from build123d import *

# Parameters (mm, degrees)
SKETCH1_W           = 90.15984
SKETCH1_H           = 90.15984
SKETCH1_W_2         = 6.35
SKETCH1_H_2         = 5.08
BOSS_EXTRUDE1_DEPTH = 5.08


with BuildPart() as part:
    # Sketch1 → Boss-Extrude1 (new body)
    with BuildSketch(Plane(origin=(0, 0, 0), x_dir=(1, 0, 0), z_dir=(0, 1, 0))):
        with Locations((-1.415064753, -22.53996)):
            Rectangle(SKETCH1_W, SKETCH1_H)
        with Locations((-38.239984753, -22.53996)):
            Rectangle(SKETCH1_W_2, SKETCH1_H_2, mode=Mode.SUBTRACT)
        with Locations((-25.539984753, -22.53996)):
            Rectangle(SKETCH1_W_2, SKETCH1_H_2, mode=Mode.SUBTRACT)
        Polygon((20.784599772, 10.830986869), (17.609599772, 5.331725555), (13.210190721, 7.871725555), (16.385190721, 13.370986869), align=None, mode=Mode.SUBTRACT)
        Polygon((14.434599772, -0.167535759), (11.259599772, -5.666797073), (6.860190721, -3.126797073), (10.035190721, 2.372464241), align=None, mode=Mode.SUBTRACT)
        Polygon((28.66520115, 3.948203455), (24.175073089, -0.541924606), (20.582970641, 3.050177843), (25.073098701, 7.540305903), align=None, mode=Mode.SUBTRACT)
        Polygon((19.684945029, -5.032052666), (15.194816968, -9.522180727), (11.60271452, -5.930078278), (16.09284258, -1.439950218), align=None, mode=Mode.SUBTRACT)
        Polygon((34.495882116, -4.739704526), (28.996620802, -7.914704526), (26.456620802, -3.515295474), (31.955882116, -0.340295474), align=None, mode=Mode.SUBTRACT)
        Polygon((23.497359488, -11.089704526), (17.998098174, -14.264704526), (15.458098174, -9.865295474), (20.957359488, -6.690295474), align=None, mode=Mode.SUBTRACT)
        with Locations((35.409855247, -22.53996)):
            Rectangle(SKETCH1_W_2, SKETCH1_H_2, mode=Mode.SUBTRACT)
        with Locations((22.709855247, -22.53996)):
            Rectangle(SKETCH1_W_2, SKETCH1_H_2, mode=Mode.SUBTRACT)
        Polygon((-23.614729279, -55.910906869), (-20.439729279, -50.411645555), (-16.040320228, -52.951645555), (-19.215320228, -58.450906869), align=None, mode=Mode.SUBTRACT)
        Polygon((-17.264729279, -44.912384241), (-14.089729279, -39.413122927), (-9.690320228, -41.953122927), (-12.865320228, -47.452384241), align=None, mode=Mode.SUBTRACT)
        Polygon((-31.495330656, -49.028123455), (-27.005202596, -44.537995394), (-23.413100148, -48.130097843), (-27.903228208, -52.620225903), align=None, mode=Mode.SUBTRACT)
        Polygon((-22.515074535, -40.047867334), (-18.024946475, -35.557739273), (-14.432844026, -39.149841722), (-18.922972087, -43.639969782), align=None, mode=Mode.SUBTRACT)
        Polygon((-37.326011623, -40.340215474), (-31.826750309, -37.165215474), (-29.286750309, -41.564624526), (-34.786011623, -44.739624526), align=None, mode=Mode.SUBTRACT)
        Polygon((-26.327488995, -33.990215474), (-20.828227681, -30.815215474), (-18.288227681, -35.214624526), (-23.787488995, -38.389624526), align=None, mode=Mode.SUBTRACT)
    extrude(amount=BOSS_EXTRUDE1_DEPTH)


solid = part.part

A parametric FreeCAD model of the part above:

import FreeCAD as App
import Part
import Sketcher

V = App.Vector
Q = App.Units.Quantity


def add_polygon(sketch, points):
    """Adds a closed chain of lines whose ends are joined by coincident constraints."""
    first, n = sketch.GeometryCount, len(points)
    for a, b in zip(points, points[1:] + points[:1]):
        sketch.addGeometry(Part.LineSegment(App.Vector(*a, 0), App.Vector(*b, 0)), False)
    for i in range(n):
        sketch.addConstraint(Sketcher.Constraint("Coincident", first + i, 2, first + (i + 1) % n, 1))

doc = App.newDocument("Part")
body = doc.addObject("PartDesign::Body", "Body")

sketch1 = doc.addObject("Sketcher::SketchObject", "Sketch")
body.addObject(sketch1)
sketch1.AttachmentSupport = (doc.XZ_Plane, [""])
sketch1.MapMode = "FlatFace"
add_polygon(sketch1, [(-46.494985, -22.53996), (-46.494985, 67.61988), (43.664855, 67.61988), (43.664855, -22.53996)])
add_polygon(sketch1, [(-34.786012, 44.739625), (-37.326012, 40.340215), (-31.82675, 37.165215), (-29.28675, 41.564625)])
add_polygon(sketch1, [(-27.903228, 52.620226), (-31.495331, 49.028123), (-27.005203, 44.537995), (-23.4131, 48.130098)])
add_polygon(sketch1, [(-19.21532, 58.450907), (-23.614729, 55.910907), (-20.439729, 50.411646), (-16.04032, 52.951646)])
add_polygon(sketch1, [(-12.86532, 47.452384), (-17.264729, 44.912384), (-14.089729, 39.413123), (-9.69032, 41.953123)])
add_polygon(sketch1, [(-23.787489, 38.389625), (-26.327489, 33.990215), (-20.828228, 30.815215), (-18.288228, 35.214625)])
add_polygon(sketch1, [(-18.922972, 43.63997), (-22.515075, 40.047867), (-18.024946, 35.557739), (-14.432844, 39.149842)])
add_polygon(sketch1, [(-35.064985, 25.07996), (-41.414985, 25.07996), (-41.414985, 19.99996), (-35.064985, 19.99996)])
add_polygon(sketch1, [(-22.364985, 25.07996), (-28.714985, 25.07996), (-28.714985, 19.99996), (-22.364985, 19.99996)])
add_polygon(sketch1, [(16.092843, 1.43995), (19.684945, 5.032053), (15.194817, 9.522181), (11.602715, 5.930078)])
add_polygon(sketch1, [(25.884855, 25.07996), (19.534855, 25.07996), (19.534855, 19.99996), (25.884855, 19.99996)])
add_polygon(sketch1, [(38.584855, 25.07996), (32.234855, 25.07996), (32.234855, 19.99996), (38.584855, 19.99996)])
add_polygon(sketch1, [(20.957359, 6.690295), (23.497359, 11.089705), (17.998098, 14.264705), (15.458098, 9.865295)])
add_polygon(sketch1, [(10.035191, -2.372464), (14.4346, 0.167536), (11.2596, 5.666797), (6.860191, 3.126797)])
add_polygon(sketch1, [(16.385191, -13.370987), (20.7846, -10.830987), (17.6096, -5.331726), (13.210191, -7.871726)])
add_polygon(sketch1, [(25.073099, -7.540306), (28.665201, -3.948203), (24.175073, 0.541925), (20.582971, -3.050178)])
add_polygon(sketch1, [(31.955882, 0.340295), (34.495882, 4.739705), (28.996621, 7.914705), (26.456621, 3.515295)])
sketch1.addConstraint(Sketcher.Constraint("Vertical", 0))
sketch1.addConstraint(Sketcher.Constraint("Horizontal", 1))
sketch1.addConstraint(Sketcher.Constraint("Vertical", 2))
sketch1.addConstraint(Sketcher.Constraint("Horizontal", 3))
sketch1.addConstraint(Sketcher.Constraint("Horizontal", 28))
sketch1.addConstraint(Sketcher.Constraint("Vertical", 29))
sketch1.addConstraint(Sketcher.Constraint("Horizontal", 30))
sketch1.addConstraint(Sketcher.Constraint("Vertical", 31))
sketch1.addConstraint(Sketcher.Constraint("Horizontal", 32))
sketch1.addConstraint(Sketcher.Constraint("Vertical", 33))
sketch1.addConstraint(Sketcher.Constraint("Horizontal", 34))
sketch1.addConstraint(Sketcher.Constraint("Vertical", 35))
sketch1.addConstraint(Sketcher.Constraint("Horizontal", 40))
sketch1.addConstraint(Sketcher.Constraint("Vertical", 41))
sketch1.addConstraint(Sketcher.Constraint("Horizontal", 42))
sketch1.addConstraint(Sketcher.Constraint("Vertical", 43))
sketch1.addConstraint(Sketcher.Constraint("Horizontal", 44))
sketch1.addConstraint(Sketcher.Constraint("Vertical", 45))
sketch1.addConstraint(Sketcher.Constraint("Horizontal", 46))
sketch1.addConstraint(Sketcher.Constraint("Vertical", 47))
sketch1.addConstraint(Sketcher.Constraint("Perpendicular", 4, 5))
sketch1.addConstraint(Sketcher.Constraint("Perpendicular", 5, 6))
sketch1.addConstraint(Sketcher.Constraint("Perpendicular", 6, 7))
sketch1.addConstraint(Sketcher.Constraint("Perpendicular", 8, 9))
sketch1.addConstraint(Sketcher.Constraint("Perpendicular", 9, 10))
sketch1.addConstraint(Sketcher.Constraint("Perpendicular", 10, 11))
sketch1.addConstraint(Sketcher.Constraint("Perpendicular", 12, 13))
sketch1.addConstraint(Sketcher.Constraint("Perpendicular", 13, 14))
sketch1.addConstraint(Sketcher.Constraint("Perpendicular", 14, 15))
sketch1.addConstraint(Sketcher.Constraint("Perpendicular", 15, 16))
sketch1.addConstraint(Sketcher.Constraint("Perpendicular", 16, 17))
sketch1.addConstraint(Sketcher.Constraint("Perpendicular", 17, 18))
sketch1.addConstraint(Sketcher.Constraint("Perpendicular", 18, 19))
sketch1.addConstraint(Sketcher.Constraint("Perpendicular", 7, 20))
sketch1.addConstraint(Sketcher.Constraint("Perpendicular", 20, 21))
sketch1.addConstraint(Sketcher.Constraint("Perpendicular", 21, 22))
sketch1.addConstraint(Sketcher.Constraint("Perpendicular", 22, 23))
sketch1.addConstraint(Sketcher.Constraint("Perpendicular", 11, 24))
sketch1.addConstraint(Sketcher.Constraint("Perpendicular", 24, 25))
sketch1.addConstraint(Sketcher.Constraint("Perpendicular", 25, 26))
sketch1.addConstraint(Sketcher.Constraint("Perpendicular", 26, 27))
sketch1.addConstraint(Sketcher.Constraint("Perpendicular", 27, 36))
sketch1.addConstraint(Sketcher.Constraint("Perpendicular", 36, 37))
sketch1.addConstraint(Sketcher.Constraint("Perpendicular", 37, 38))
sketch1.addConstraint(Sketcher.Constraint("Perpendicular", 38, 39))
sketch1.addConstraint(Sketcher.Constraint("Perpendicular", 23, 48))
sketch1.addConstraint(Sketcher.Constraint("Perpendicular", 48, 49))
sketch1.addConstraint(Sketcher.Constraint("Perpendicular", 49, 50))
sketch1.addConstraint(Sketcher.Constraint("Perpendicular", 50, 51))
sketch1.addConstraint(Sketcher.Constraint("Perpendicular", 19, 52))
sketch1.addConstraint(Sketcher.Constraint("Perpendicular", 52, 53))
sketch1.addConstraint(Sketcher.Constraint("Perpendicular", 53, 54))
sketch1.addConstraint(Sketcher.Constraint("Perpendicular", 54, 55))
sketch1.addConstraint(Sketcher.Constraint("Perpendicular", 55, 56))
sketch1.addConstraint(Sketcher.Constraint("Perpendicular", 56, 57))
sketch1.addConstraint(Sketcher.Constraint("Perpendicular", 57, 58))
sketch1.addConstraint(Sketcher.Constraint("Perpendicular", 58, 59))
sketch1.addConstraint(Sketcher.Constraint("Perpendicular", 39, 60))
sketch1.addConstraint(Sketcher.Constraint("Perpendicular", 60, 61))
sketch1.addConstraint(Sketcher.Constraint("Perpendicular", 61, 62))
sketch1.addConstraint(Sketcher.Constraint("Perpendicular", 62, 63))
sketch1.addConstraint(Sketcher.Constraint("Perpendicular", 51, 64))
sketch1.addConstraint(Sketcher.Constraint("Perpendicular", 64, 65))
sketch1.addConstraint(Sketcher.Constraint("Perpendicular", 65, 66))
sketch1.addConstraint(Sketcher.Constraint("Perpendicular", 66, 67))
sketch1.addConstraint(Sketcher.Constraint("Horizontal", 31, 2, 32, 2))
sketch1.addConstraint(Sketcher.Constraint("Horizontal", 30, 2, 33, 2))
sketch1.addConstraint(Sketcher.Constraint("Horizontal", 35, 2, 40, 2))
sketch1.addConstraint(Sketcher.Constraint("Horizontal", 34, 2, 41, 2))
sketch1.addConstraint(Sketcher.Constraint("Horizontal", 43, 2, 44, 2))
sketch1.addConstraint(Sketcher.Constraint("Horizontal", 42, 2, 45, 2))
sketch1.addConstraint(Sketcher.Constraint("Equal", 30, 32))
sketch1.addConstraint(Sketcher.Constraint("Equal", 34, 40))
sketch1.addConstraint(Sketcher.Constraint("Equal", 42, 44))
sketch1.addConstraint(Sketcher.Constraint("Equal", 3, 0))
sketch1.addConstraint(Sketcher.Constraint("Equal", 6, 8))
sketch1.addConstraint(Sketcher.Constraint("Equal", 7, 9))
sketch1.addConstraint(Sketcher.Constraint("Equal", 10, 12))
sketch1.addConstraint(Sketcher.Constraint("Equal", 11, 13))
sketch1.addConstraint(Sketcher.Constraint("Equal", 14, 16))
sketch1.addConstraint(Sketcher.Constraint("Equal", 15, 17))
sketch1.addConstraint(Sketcher.Constraint("Equal", 18, 20))
sketch1.addConstraint(Sketcher.Constraint("Equal", 19, 21))
sketch1.addConstraint(Sketcher.Constraint("Equal", 22, 24))
sketch1.addConstraint(Sketcher.Constraint("Equal", 23, 25))
sketch1.addConstraint(Sketcher.Constraint("Equal", 26, 36))
sketch1.addConstraint(Sketcher.Constraint("Equal", 27, 37))
sketch1.addConstraint(Sketcher.Constraint("Equal", 38, 48))
sketch1.addConstraint(Sketcher.Constraint("Equal", 39, 49))
sketch1.addConstraint(Sketcher.Constraint("Equal", 50, 52))
sketch1.addConstraint(Sketcher.Constraint("Equal", 51, 53))
sketch1.addConstraint(Sketcher.Constraint("Equal", 54, 56))
sketch1.addConstraint(Sketcher.Constraint("Equal", 55, 57))
sketch1.addConstraint(Sketcher.Constraint("Equal", 58, 60))
sketch1.addConstraint(Sketcher.Constraint("Equal", 59, 61))
sketch1.addConstraint(Sketcher.Constraint("Equal", 62, 64))
sketch1.addConstraint(Sketcher.Constraint("Equal", 63, 65))
sketch1.addConstraint(Sketcher.Constraint("DistanceY", 29, 2, 29, 1, Q("0.2 in")))
sketch1.addConstraint(Sketcher.Constraint("Angle", 4, Q("-120 deg")))
sketch1.addConstraint(Sketcher.Constraint("Angle", 8, Q("-135 deg")))
sketch1.addConstraint(Sketcher.Constraint("Angle", 12, Q("-150 deg")))
sketch1.addConstraint(Sketcher.Constraint("Distance", 4, Q("0.2 in")))
sketch1.addConstraint(Sketcher.Constraint("DistanceX", 28, 2, 28, 1, Q("0.25 in")))
sketch1.addConstraint(Sketcher.Constraint("Distance", 5, Q("0.25 in")))
sketch1.addConstraint(Sketcher.Constraint("DistanceX", 1, 1, 1, 2, Q("3.5496 in")))
sketch1.addConstraint(Sketcher.Constraint("DistanceY", -1, 1, 0, 2, Q("2.6622 in")))
sketch1.addConstraint(Sketcher.Constraint("DistanceY", -1, 1, 28, 2, Q("0.9874 in")))
sketch1.addConstraint(Sketcher.Constraint("DistanceX", 10, 2, -1, 1, 23.4131))
sketch1.addConstraint(Sketcher.Constraint("DistanceX", -1, 1, 49, 2, 17.998098))
sketch1.addConstraint(Sketcher.Constraint("DistanceX", -1, 1, 52, 2, 14.4346))
sketch1.addConstraint(Sketcher.Constraint("DistanceX", -1, 1, 56, 2, 20.7846))
sketch1.addConstraint(Sketcher.Constraint("DistanceX", -1, 1, 60, 2, 28.665201))
sketch1.addConstraint(Sketcher.Constraint("DistanceX", 4, 2, -1, 1, 37.326012))
sketch1.addConstraint(Sketcher.Constraint("DistanceX", 12, 2, -1, 1, 23.614729))
sketch1.addConstraint(Sketcher.Constraint("DistanceX", 16, 2, -1, 1, 17.264729))
sketch1.addConstraint(Sketcher.Constraint("DistanceX", 20, 2, -1, 1, 26.327489))
sketch1.addConstraint(Sketcher.Constraint("DistanceY", -1, 1, 25, 2, 35.557739))
sketch1.addConstraint(Sketcher.Constraint("DistanceY", -1, 1, 37, 2, 9.522181))
sketch1.addConstraint(Sketcher.Constraint("DistanceX", -1, 1, 65, 2, 28.996621))
sketch1.addConstraint(Sketcher.Constraint("DistanceX", 0, 2, -1, 1, 46.494985))
sketch1.addConstraint(Sketcher.Constraint("DistanceY", -1, 1, 4, 2, 40.340215))
sketch1.addConstraint(Sketcher.Constraint("DistanceY", -1, 1, 8, 2, 49.028123))
sketch1.addConstraint(Sketcher.Constraint("DistanceY", -1, 1, 12, 2, 55.910907))
sketch1.addConstraint(Sketcher.Constraint("DistanceY", -1, 1, 16, 2, 44.912384))
sketch1.addConstraint(Sketcher.Constraint("DistanceY", -1, 1, 20, 2, 33.990215))
sketch1.addConstraint(Sketcher.Constraint("DistanceX", 24, 2, -1, 1, 22.515075))
sketch1.addConstraint(Sketcher.Constraint("DistanceX", 28, 2, -1, 1, 41.414985))
sketch1.addConstraint(Sketcher.Constraint("DistanceX", 32, 2, -1, 1, 28.714985))
sketch1.addConstraint(Sketcher.Constraint("DistanceX", -1, 1, 36, 2, 19.684945))
sketch1.addConstraint(Sketcher.Constraint("DistanceX", -1, 1, 40, 2, 19.534855))
sketch1.addConstraint(Sketcher.Constraint("DistanceX", -1, 1, 44, 2, 32.234855))
sketch1.addConstraint(Sketcher.Constraint("DistanceY", -1, 1, 48, 2, 11.089705))
sketch1.addConstraint(Sketcher.Constraint("DistanceY", -1, 1, 52, 2, 0.167536))
sketch1.addConstraint(Sketcher.Constraint("DistanceY", 56, 2, -1, 1, 10.830987))
sketch1.addConstraint(Sketcher.Constraint("DistanceY", 60, 2, -1, 1, 3.948203))
sketch1.addConstraint(Sketcher.Constraint("DistanceY", -1, 1, 64, 2, 4.739705))
pad1 = doc.addObject("PartDesign::Pad", "Pad")
body.addObject(pad1)
pad1.Profile = sketch1
pad1.Length = Q("0.2 in")
pad1.Reversed = True

doc.recompute()
